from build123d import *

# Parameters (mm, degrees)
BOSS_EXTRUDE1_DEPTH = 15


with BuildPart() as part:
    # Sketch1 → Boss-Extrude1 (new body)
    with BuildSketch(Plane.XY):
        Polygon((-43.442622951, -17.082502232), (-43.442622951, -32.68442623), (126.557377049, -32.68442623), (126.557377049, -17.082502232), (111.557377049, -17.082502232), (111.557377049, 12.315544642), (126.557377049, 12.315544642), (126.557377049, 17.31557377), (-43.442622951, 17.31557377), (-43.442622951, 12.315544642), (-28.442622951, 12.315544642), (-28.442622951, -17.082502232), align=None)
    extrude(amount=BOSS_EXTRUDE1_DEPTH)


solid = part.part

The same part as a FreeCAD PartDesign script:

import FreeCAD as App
import Part
import Sketcher
from FreeCAD import Vector

doc = App.newDocument("Part")
body = doc.addObject("PartDesign::Body", "Body")

# Sketch on XY plane
sketch1 = body.newObject("Sketcher::SketchObject", "Sketch")
sketch1.AttachmentSupport = (doc.getObject("XY_Plane"), [""])
sketch1.MapMode = "FlatFace"
sketch1.addGeometry([
    Part.LineSegment(Vector(-43, -17, 0), Vector(-43, -33, 0)),  # 0
    Part.LineSegment(Vector(-43, -33, 0), Vector(127, -33, 0)),  # 1
    Part.LineSegment(Vector(127, -33, 0), Vector(127, -17, 0)),  # 2
    Part.LineSegment(Vector(127, -17, 0), Vector(112, -17, 0)),  # 3
    Part.LineSegment(Vector(112, -17, 0), Vector(112, 12, 0)),  # 4
    Part.LineSegment(Vector(112, 12, 0), Vector(127, 12, 0)),  # 5
    Part.LineSegment(Vector(127, 12, 0), Vector(127, 17, 0)),  # 6
    Part.LineSegment(Vector(127, 17, 0), Vector(-43, 17, 0)),  # 7
    Part.LineSegment(Vector(-43, 17, 0), Vector(-43, 12, 0)),  # 8
    Part.LineSegment(Vector(-43, 12, 0), Vector(-28, 12, 0)),  # 9
    Part.LineSegment(Vector(-28, 12, 0), Vector(-28, -17, 0)),  # 10
    Part.LineSegment(Vector(-28, -17, 0), Vector(-43, -17, 0)),  # 11
], False)
sketch1.addConstraint([
    Sketcher.Constraint("Coincident", 0, 2, 1, 1),
    Sketcher.Constraint("Coincident", 1, 2, 2, 1),
    Sketcher.Constraint("Coincident", 2, 2, 3, 1),
    Sketcher.Constraint("Coincident", 3, 2, 4, 1),
    Sketcher.Constraint("Coincident", 4, 2, 5, 1),
    Sketcher.Constraint("Coincident", 5, 2, 6, 1),
    Sketcher.Constraint("Coincident", 6, 2, 7, 1),
    Sketcher.Constraint("Coincident", 7, 2, 8, 1),
    Sketcher.Constraint("Coincident", 8, 2, 9, 1),
    Sketcher.Constraint("Coincident", 9, 2, 10, 1),
    Sketcher.Constraint("Coincident", 10, 2, 11, 1),
    Sketcher.Constraint("Coincident", 11, 2, 0, 1),
    Sketcher.Constraint("Vertical", 0),
    Sketcher.Constraint("Horizontal", 1),
    Sketcher.Constraint("Vertical", 2),
    Sketcher.Constraint("Horizontal", 3),
    Sketcher.Constraint("Vertical", 4),
    Sketcher.Constraint("Horizontal", 5),
    Sketcher.Constraint("Vertical", 6),
    Sketcher.Constraint("Horizontal", 7),
    Sketcher.Constraint("Vertical", 8),
    Sketcher.Constraint("Horizontal", 9),
    Sketcher.Constraint("Vertical", 10),
    Sketcher.Constraint("Horizontal", 11),
    Sketcher.Constraint("Horizontal", 5, 2, 8, 2),
    Sketcher.Constraint("Horizontal", 3, 2, 10, 2),
    Sketcher.Constraint("Vertical", 2, 2, 5, 2),
    Sketcher.Constraint("Vertical", 0, 2, 7, 2),
    Sketcher.Constraint("Equal", 5, 9),
    Sketcher.Constraint("DistanceX", 1, 1, 1, 2, 170.0),
    Sketcher.Constraint("DistanceX", 3, 2, 3, 1, 15.0),
    Sketcher.Constraint("DistanceY", 1, 2, 6, 2, 50.0),
    Sketcher.Constraint("DistanceY", 6, 1, 6, 2, 5.000029),
    Sketcher.Constraint("DistanceY", 0, 2, 0, 1, 15.601924),
    Sketcher.Constraint("DistanceX", 0, 2, -1, 1, 43.442623),
    Sketcher.Constraint("DistanceY", 0, 2, -1, 1, 32.684426),
])
pad1 = body.newObject("PartDesign::Pad", "Pad")
pad1.Profile = sketch1
pad1.Length = 15

doc.recompute()
